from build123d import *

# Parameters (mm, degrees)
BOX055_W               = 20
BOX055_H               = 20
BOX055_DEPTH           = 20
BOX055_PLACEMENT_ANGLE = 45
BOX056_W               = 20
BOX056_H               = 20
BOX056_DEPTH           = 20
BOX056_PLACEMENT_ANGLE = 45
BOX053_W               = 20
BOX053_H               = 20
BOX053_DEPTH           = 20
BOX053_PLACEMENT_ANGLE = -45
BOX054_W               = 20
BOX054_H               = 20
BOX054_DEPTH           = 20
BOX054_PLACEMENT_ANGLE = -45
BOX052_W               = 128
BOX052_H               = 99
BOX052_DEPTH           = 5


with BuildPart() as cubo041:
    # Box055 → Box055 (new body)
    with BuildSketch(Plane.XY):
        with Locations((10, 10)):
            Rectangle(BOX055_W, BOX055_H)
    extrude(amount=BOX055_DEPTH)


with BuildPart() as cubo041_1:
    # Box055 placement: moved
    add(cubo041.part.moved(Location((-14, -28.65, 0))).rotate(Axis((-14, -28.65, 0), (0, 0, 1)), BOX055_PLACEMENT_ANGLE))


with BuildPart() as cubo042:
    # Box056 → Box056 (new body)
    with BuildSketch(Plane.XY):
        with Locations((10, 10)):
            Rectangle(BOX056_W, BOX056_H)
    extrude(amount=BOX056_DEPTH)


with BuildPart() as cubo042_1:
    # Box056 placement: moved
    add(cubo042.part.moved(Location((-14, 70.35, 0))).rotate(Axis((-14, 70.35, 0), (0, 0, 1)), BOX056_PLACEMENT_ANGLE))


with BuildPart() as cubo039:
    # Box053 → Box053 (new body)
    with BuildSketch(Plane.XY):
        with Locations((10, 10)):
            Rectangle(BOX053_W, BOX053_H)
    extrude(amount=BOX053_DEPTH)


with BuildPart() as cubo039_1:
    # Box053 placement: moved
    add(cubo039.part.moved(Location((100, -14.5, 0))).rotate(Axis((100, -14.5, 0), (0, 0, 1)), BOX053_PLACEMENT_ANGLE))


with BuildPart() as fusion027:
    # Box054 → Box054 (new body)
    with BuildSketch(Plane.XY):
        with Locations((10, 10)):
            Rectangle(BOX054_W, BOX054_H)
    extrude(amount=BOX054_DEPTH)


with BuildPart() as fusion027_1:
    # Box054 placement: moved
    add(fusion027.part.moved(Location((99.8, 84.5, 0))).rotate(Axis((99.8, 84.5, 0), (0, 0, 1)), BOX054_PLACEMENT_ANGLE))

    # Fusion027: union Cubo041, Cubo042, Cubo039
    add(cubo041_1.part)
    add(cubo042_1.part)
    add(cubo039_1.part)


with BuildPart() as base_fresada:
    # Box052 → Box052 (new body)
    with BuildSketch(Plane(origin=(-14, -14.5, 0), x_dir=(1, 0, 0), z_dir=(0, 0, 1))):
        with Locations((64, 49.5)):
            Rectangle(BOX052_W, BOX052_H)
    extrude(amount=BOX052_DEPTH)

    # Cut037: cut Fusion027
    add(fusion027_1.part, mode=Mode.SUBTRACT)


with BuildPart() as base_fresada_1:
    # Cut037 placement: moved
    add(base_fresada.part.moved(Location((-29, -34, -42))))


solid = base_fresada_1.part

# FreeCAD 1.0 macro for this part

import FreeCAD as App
import Part
import Sketcher

doc = App.newDocument("Part")
params = doc.addObject("Spreadsheet::Sheet", "Params")
for row, (alias, value) in enumerate([
    ("sketch1_width", "20 mm"),
    ("pad1_length", "20 mm"),
    ("sketch2_width", "20 mm"),
    ("pad2_length", "20 mm"),
    ("sketch3_width", "20 mm"),
    ("pad3_length", "20 mm"),
    ("sketch4_width", "20 mm"),
    ("pad4_length", "20 mm"),
    ("sketch5_width", "128 mm"),
    ("sketch5_height", "99 mm"),
    ("pad5_length", "5 mm"),
], start=1):
    params.set(f"A{row}", alias)
    params.set(f"B{row}", "=" + value)
    params.setAlias(f"B{row}", alias)

body = doc.addObject("PartDesign::Body", "Body")

# Sketch on XY plane
sketch1 = body.newObject("Sketcher::SketchObject", "Sketch")
sketch1.AttachmentSupport = (doc.getObject("XY_Plane"), [""])
sketch1.MapMode = "FlatFace"
sketch1.addGeometry([
    Part.LineSegment(App.Vector(0, 20, 0), App.Vector(0, 0, 0)),
    Part.LineSegment(App.Vector(0, 0, 0), App.Vector(20, 0, 0)),
    Part.LineSegment(App.Vector(20, 0, 0), App.Vector(20, 20, 0)),
    Part.LineSegment(App.Vector(20, 20, 0), App.Vector(0, 20, 0)),
], False)
sketch1.addConstraint([
    Sketcher.Constraint("Coincident", 0, 2, 1, 1),
    Sketcher.Constraint("Coincident", 1, 2, 2, 1),
    Sketcher.Constraint("Coincident", 2, 2, 3, 1),
    Sketcher.Constraint("Coincident", 3, 2, 0, 1),
    Sketcher.Constraint("Vertical", 0),
    Sketcher.Constraint("Horizontal", 1),
    Sketcher.Constraint("Vertical", 2),
    Sketcher.Constraint("Horizontal", 3),
    Sketcher.Constraint("Coincident", 0, 2, -1, 1),
    Sketcher.Constraint("Equal", 3, 0),
    Sketcher.Constraint("DistanceX", 1, 1, 1, 2, 20.0),
])
sketch1.setExpression("Constraints[10]", "Params.sketch1_width")
pad1 = body.newObject("PartDesign::Pad", "Pad")
pad1.Profile = sketch1
pad1.setExpression("Length", "Params.pad1_length")
body2 = doc.addObject("PartDesign::Body", "Body001")
doc.recompute()

body.Placement = App.Placement(App.Vector(-14, -28.65, 0), App.Rotation(App.Vector(0, 0, 1), 45))
boolean = body2.newObject("PartDesign::Boolean", "Boolean")
boolean.Type = "Fuse"
boolean.addObjects([body])
body3 = doc.addObject("PartDesign::Body", "Body002")

# Sketch on XY plane
sketch2 = body3.newObject("Sketcher::SketchObject", "Sketch001")
sketch2.AttachmentSupport = (doc.getObject("XY_Plane002"), [""])
sketch2.MapMode = "FlatFace"
sketch2.addGeometry([
    Part.LineSegment(App.Vector(0, 20, 0), App.Vector(0, 0, 0)),
    Part.LineSegment(App.Vector(0, 0, 0), App.Vector(20, 0, 0)),
    Part.LineSegment(App.Vector(20, 0, 0), App.Vector(20, 20, 0)),
    Part.LineSegment(App.Vector(20, 20, 0), App.Vector(0, 20, 0)),
], False)
sketch2.addConstraint([
    Sketcher.Constraint("Coincident", 0, 2, 1, 1),
    Sketcher.Constraint("Coincident", 1, 2, 2, 1),
    Sketcher.Constraint("Coincident", 2, 2, 3, 1),
    Sketcher.Constraint("Coincident", 3, 2, 0, 1),
    Sketcher.Constraint("Vertical", 0),
    Sketcher.Constraint("Horizontal", 1),
    Sketcher.Constraint("Vertical", 2),
    Sketcher.Constraint("Horizontal", 3),
    Sketcher.Constraint("Coincident", 0, 2, -1, 1),
    Sketcher.Constraint("Equal", 3, 0),
    Sketcher.Constraint("DistanceX", 1, 1, 1, 2, 20.0),
])
sketch2.setExpression("Constraints[10]", "Params.sketch2_width")
pad2 = body3.newObject("PartDesign::Pad", "Pad001")
pad2.Profile = sketch2
pad2.setExpression("Length", "Params.pad2_length")
body4 = doc.addObject("PartDesign::Body", "Body003")
doc.recompute()

body3.Placement = App.Placement(App.Vector(-14, 70.35, 0), App.Rotation(App.Vector(0, 0, 1), 45))
boolean2 = body4.newObject("PartDesign::Boolean", "Boolean001")
boolean2.Type = "Fuse"
boolean2.addObjects([body3])
body5 = doc.addObject("PartDesign::Body", "Body004")

# Sketch on XY plane
sketch3 = body5.newObject("Sketcher::SketchObject", "Sketch002")
sketch3.AttachmentSupport = (doc.getObject("XY_Plane004"), [""])
sketch3.MapMode = "FlatFace"
sketch3.addGeometry([
    Part.LineSegment(App.Vector(0, 20, 0), App.Vector(0, 0, 0)),
    Part.LineSegment(App.Vector(0, 0, 0), App.Vector(20, 0, 0)),
    Part.LineSegment(App.Vector(20, 0, 0), App.Vector(20, 20, 0)),
    Part.LineSegment(App.Vector(20, 20, 0), App.Vector(0, 20, 0)),
], False)
sketch3.addConstraint([
    Sketcher.Constraint("Coincident", 0, 2, 1, 1),
    Sketcher.Constraint("Coincident", 1, 2, 2, 1),
    Sketcher.Constraint("Coincident", 2, 2, 3, 1),
    Sketcher.Constraint("Coincident", 3, 2, 0, 1),
    Sketcher.Constraint("Vertical", 0),
    Sketcher.Constraint("Horizontal", 1),
    Sketcher.Constraint("Vertical", 2),
    Sketcher.Constraint("Horizontal", 3),
    Sketcher.Constraint("Coincident", 0, 2, -1, 1),
    Sketcher.Constraint("Equal", 3, 0),
    Sketcher.Constraint("DistanceX", 1, 1, 1, 2, 20.0),
])
sketch3.setExpression("Constraints[10]", "Params.sketch3_width")
pad3 = body5.newObject("PartDesign::Pad", "Pad002")
pad3.Profile = sketch3
pad3.setExpression("Length", "Params.pad3_length")
body6 = doc.addObject("PartDesign::Body", "Body005")
doc.recompute()

body5.Placement = App.Placement(App.Vector(100, -14.5, 0), App.Rotation(App.Vector(0, 0, 1), 315))
boolean3 = body6.newObject("PartDesign::Boolean", "Boolean002")
boolean3.Type = "Fuse"
boolean3.addObjects([body5])
body7 = doc.addObject("PartDesign::Body", "Body006")

# Sketch on XY plane
sketch4 = body7.newObject("Sketcher::SketchObject", "Sketch003")
sketch4.AttachmentSupport = (doc.getObject("XY_Plane006"), [""])
sketch4.MapMode = "FlatFace"
sketch4.addGeometry([
    Part.LineSegment(App.Vector(0, 20, 0), App.Vector(0, 0, 0)),
    Part.LineSegment(App.Vector(0, 0, 0), App.Vector(20, 0, 0)),
    Part.LineSegment(App.Vector(20, 0, 0), App.Vector(20, 20, 0)),
    Part.LineSegment(App.Vector(20, 20, 0), App.Vector(0, 20, 0)),
], False)
sketch4.addConstraint([
    Sketcher.Constraint("Coincident", 0, 2, 1, 1),
    Sketcher.Constraint("Coincident", 1, 2, 2, 1),
    Sketcher.Constraint("Coincident", 2, 2, 3, 1),
    Sketcher.Constraint("Coincident", 3, 2, 0, 1),
    Sketcher.Constraint("Vertical", 0),
    Sketcher.Constraint("Horizontal", 1),
    Sketcher.Constraint("Vertical", 2),
    Sketcher.Constraint("Horizontal", 3),
    Sketcher.Constraint("Coincident", 0, 2, -1, 1),
    Sketcher.Constraint("Equal", 3, 0),
    Sketcher.Constraint("DistanceX", 1, 1, 1, 2, 20.0),
])
sketch4.setExpression("Constraints[10]", "Params.sketch4_width")
pad4 = body7.newObject("PartDesign::Pad", "Pad003")
pad4.Profile = sketch4
pad4.setExpression("Length", "Params.pad4_length")
body8 = doc.addObject("PartDesign::Body", "Body007")
body8.AllowCompound = True
doc.recompute()

body7.Placement = App.Placement(App.Vector(99.8, 84.5, 0), App.Rotation(App.Vector(0, 0, 1), 315))
boolean4 = body8.newObject("PartDesign::Boolean", "Boolean003")
boolean4.Type = "Fuse"
boolean4.addObjects([body7])
doc.recompute()

boolean5 = body8.newObject("PartDesign::Boolean", "Boolean004")
boolean5.Type = "Fuse"
boolean5.addObjects([body2])
doc.recompute()

boolean6 = body8.newObject("PartDesign::Boolean", "Boolean005")
boolean6.Type = "Fuse"
boolean6.addObjects([body4])
doc.recompute()

boolean7 = body8.newObject("PartDesign::Boolean", "Boolean006")
boolean7.Type = "Fuse"
boolean7.addObjects([body6])
body9 = doc.addObject("PartDesign::Body", "Body008")

# Sketch on XY plane
sketch5 = body9.newObject("Sketcher::SketchObject", "Sketch004")
sketch5.AttachmentSupport = (doc.getObject("XY_Plane008"), [""])
sketch5.MapMode = "FlatFace"
sketch5.addGeometry([
    Part.LineSegment(App.Vector(-14, 84, 0), App.Vector(-14, -14, 0)),
    Part.LineSegment(App.Vector(-14, -14, 0), App.Vector(114, -14, 0)),
    Part.LineSegment(App.Vector(114, -14, 0), App.Vector(114, 84, 0)),
    Part.LineSegment(App.Vector(114, 84, 0), App.Vector(-14, 84, 0)),
], False)
sketch5.addConstraint([
    Sketcher.Constraint("Coincident", 0, 2, 1, 1),
    Sketcher.Constraint("Coincident", 1, 2, 2, 1),
    Sketcher.Constraint("Coincident", 2, 2, 3, 1),
    Sketcher.Constraint("Coincident", 3, 2, 0, 1),
    Sketcher.Constraint("Vertical", 0),
    Sketcher.Constraint("Horizontal", 1),
    Sketcher.Constraint("Vertical", 2),
    Sketcher.Constraint("Horizontal", 3),
    Sketcher.Constraint("DistanceX", 1, 1, 1, 2, 128.0),
    Sketcher.Constraint("DistanceY", 0, 2, 0, 1, 99.0),
    Sketcher.Constraint("DistanceX", 0, 2, -1, 1, 14.0),
    Sketcher.Constraint("DistanceY", 0, 2, -1, 1, 14.5),
])
sketch5.setExpression("Constraints[8]", "Params.sketch5_width")
sketch5.setExpression("Constraints[9]", "Params.sketch5_height")
pad5 = body9.newObject("PartDesign::Pad", "Pad004")
pad5.Profile = sketch5
pad5.setExpression("Length", "Params.pad5_length")
doc.recompute()

boolean8 = body9.newObject("PartDesign::Boolean", "Boolean007")
boolean8.Type = "Cut"
boolean8.addObjects([body8])
body10 = doc.addObject("PartDesign::Body", "Body009")
doc.recompute()

body9.Placement = App.Placement(App.Vector(-29, -34, -42), App.Rotation(App.Vector(0, 0, 1), 0))
boolean9 = body10.newObject("PartDesign::Boolean", "Boolean008")
boolean9.Type = "Fuse"
boolean9.addObjects([body9])

doc.recompute()
